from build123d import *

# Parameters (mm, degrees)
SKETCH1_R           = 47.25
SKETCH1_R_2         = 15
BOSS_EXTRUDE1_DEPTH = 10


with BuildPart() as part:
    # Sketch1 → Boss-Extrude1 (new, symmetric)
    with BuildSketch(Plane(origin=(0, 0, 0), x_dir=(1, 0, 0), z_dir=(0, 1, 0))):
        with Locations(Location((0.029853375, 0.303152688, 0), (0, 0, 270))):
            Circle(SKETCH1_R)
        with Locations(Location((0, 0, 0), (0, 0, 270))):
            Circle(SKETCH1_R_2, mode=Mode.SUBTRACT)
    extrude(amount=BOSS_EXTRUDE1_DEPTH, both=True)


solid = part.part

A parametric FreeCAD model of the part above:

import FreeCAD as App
import Part
import Sketcher

doc = App.newDocument("Part")
body = doc.addObject("PartDesign::Body", "Body")

sketch1 = doc.addObject("Sketcher::SketchObject", "Sketch")
body.addObject(sketch1)
sketch1.AttachmentSupport = (doc.XZ_Plane, [""])
sketch1.MapMode = "FlatFace"
sketch1.addGeometry([
    Part.Circle(App.Vector(0, 0, 0), App.Vector(0, 0, 1), 47),
    Part.Circle(App.Vector(0, 0, 0), App.Vector(0, 0, 1), 15),
], False)
sketch1.addConstraint([
    Sketcher.Constraint("Coincident", 1, 3, -1, 1),
    Sketcher.Constraint("Diameter", 1, 30.0),
    Sketcher.Constraint("Diameter", 0, 94.5),
    Sketcher.Constraint("DistanceX", -1, 1, 0, 3, 0.029853),
    Sketcher.Constraint("DistanceY", 0, 3, -1, 1, 0.303153),
])
pad1 = doc.addObject("PartDesign::Pad", "Pad")
body.addObject(pad1)
pad1.Profile = sketch1
pad1.Length = 20
pad1.Midplane = True

doc.recompute()
